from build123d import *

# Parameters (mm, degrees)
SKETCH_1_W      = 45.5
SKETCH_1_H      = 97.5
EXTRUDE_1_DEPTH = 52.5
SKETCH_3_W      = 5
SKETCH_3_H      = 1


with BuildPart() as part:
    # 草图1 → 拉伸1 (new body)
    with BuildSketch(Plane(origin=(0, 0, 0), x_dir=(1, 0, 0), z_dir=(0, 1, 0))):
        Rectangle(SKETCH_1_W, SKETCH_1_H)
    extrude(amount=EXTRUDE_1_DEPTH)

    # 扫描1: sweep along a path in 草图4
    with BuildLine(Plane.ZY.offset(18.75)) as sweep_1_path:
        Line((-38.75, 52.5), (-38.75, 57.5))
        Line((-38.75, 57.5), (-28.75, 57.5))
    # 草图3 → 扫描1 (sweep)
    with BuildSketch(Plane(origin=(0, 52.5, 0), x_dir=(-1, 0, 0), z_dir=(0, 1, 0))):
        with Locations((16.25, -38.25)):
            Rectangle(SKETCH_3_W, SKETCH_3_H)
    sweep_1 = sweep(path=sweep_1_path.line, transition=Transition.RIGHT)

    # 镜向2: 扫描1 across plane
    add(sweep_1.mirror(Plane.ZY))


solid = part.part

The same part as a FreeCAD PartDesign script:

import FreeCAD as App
import Part
import Sketcher

V = App.Vector
Q = App.Units.Quantity


def add_polygon(sketch, points):
    """Adds a closed chain of lines whose ends are joined by coincident constraints."""
    first, n = sketch.GeometryCount, len(points)
    for a, b in zip(points, points[1:] + points[:1]):
        sketch.addGeometry(Part.LineSegment(App.Vector(*a, 0), App.Vector(*b, 0)), False)
    for i in range(n):
        sketch.addConstraint(Sketcher.Constraint("Coincident", first + i, 2, first + (i + 1) % n, 1))

doc = App.newDocument("Part")
body = doc.addObject("PartDesign::Body", "Body")

sketch1 = body.newObject("Sketcher::SketchObject", "Sketch")
sketch1.AttachmentSupport = (doc.getObject("XZ_Plane"), [""])
sketch1.MapMode = "FlatFace"
add_polygon(sketch1, [(-23, -49), (-23, 49), (23, 49), (23, -49)])
sketch1.addConstraint([
    Sketcher.Constraint("Vertical", 0),
    Sketcher.Constraint("Horizontal", 1),
    Sketcher.Constraint("Vertical", 2),
    Sketcher.Constraint("Horizontal", 3),
    Sketcher.Constraint("Symmetric", 0, 2, 2, 2, -1, 1),
    Sketcher.Constraint("DistanceX", 1, 1, 1, 2, Q("45.5 mm")),
    Sketcher.Constraint("DistanceY", 0, 1, 0, 2, Q("97.5 mm")),
])
pad1 = body.newObject("PartDesign::Pad", "Pad")
pad1.Profile = sketch1
pad1.Length = 52.5
pad1.Reversed = True

sketch2 = body.newObject("Sketcher::SketchObject", "Sketch001")
sketch2.AttachmentSupport = (doc.getObject("XZ_Plane"), [""])
sketch2.MapMode = "FlatFace"
sketch2.AttachmentOffset = App.Placement(V(0, 0, -52.5), App.Rotation())
add_polygon(sketch2, [(-13.8, -37.8), (-13.8, -38.8), (-18.8, -38.8), (-18.8, -37.8)])
sketch2.addConstraint([
    Sketcher.Constraint("Vertical", 0),
    Sketcher.Constraint("Horizontal", 1),
    Sketcher.Constraint("Vertical", 2),
    Sketcher.Constraint("Horizontal", 3),
    Sketcher.Constraint("DistanceX", 1, 2, 1, 1, Q("5 mm")),
    Sketcher.Constraint("DistanceY", 0, 2, 0, 1, Q("1 mm")),
    Sketcher.Constraint("DistanceX", 0, 2, -1, 1, Q("13.75 mm")),
    Sketcher.Constraint("DistanceY", 0, 2, -1, 1, Q("38.75 mm")),
])

sketch3 = body.newObject("Sketcher::SketchObject", "Sketch002")
sketch3.AttachmentSupport = (doc.getObject("YZ_Plane"), [""])
sketch3.MapMode = "FlatFace"
sketch3.AttachmentOffset = App.Placement(V(0, 0, -18.75), App.Rotation())
sketch3.addGeometry([
    Part.LineSegment(V(52, -39, 0), V(58, -39, 0)),
    Part.LineSegment(V(58, -39, 0), V(58, -29, 0)),
], False)
sketch3.addConstraint([
    Sketcher.Constraint("Coincident", 0, 2, 1, 1),
    Sketcher.Constraint("Horizontal", 0),
    Sketcher.Constraint("Vertical", 1),
    Sketcher.Constraint("DistanceX", 0, 1, 0, 2, Q("5 mm")),
    Sketcher.Constraint("DistanceY", 1, 1, 1, 2, Q("10 mm")),
    Sketcher.Constraint("DistanceX", -1, 1, 0, 1, Q("52.5 mm")),
    Sketcher.Constraint("DistanceY", 0, 1, -1, 1, Q("38.75 mm")),
])
doc.recompute()

additivepipe = body.newObject("PartDesign::AdditivePipe", "AdditivePipe")
additivepipe.Profile = sketch2
additivepipe.Spine = (sketch3, ["Edge1", "Edge2"])
additivepipe.Transition = "Right corner"
doc.recompute()

mirrored = body.newObject("PartDesign::Mirrored", "Mirrored")
mirrored.Originals = [additivepipe]
mirrored.MirrorPlane = (doc.getObject("YZ_Plane"), [""])
body.Tip = mirrored

doc.recompute()
